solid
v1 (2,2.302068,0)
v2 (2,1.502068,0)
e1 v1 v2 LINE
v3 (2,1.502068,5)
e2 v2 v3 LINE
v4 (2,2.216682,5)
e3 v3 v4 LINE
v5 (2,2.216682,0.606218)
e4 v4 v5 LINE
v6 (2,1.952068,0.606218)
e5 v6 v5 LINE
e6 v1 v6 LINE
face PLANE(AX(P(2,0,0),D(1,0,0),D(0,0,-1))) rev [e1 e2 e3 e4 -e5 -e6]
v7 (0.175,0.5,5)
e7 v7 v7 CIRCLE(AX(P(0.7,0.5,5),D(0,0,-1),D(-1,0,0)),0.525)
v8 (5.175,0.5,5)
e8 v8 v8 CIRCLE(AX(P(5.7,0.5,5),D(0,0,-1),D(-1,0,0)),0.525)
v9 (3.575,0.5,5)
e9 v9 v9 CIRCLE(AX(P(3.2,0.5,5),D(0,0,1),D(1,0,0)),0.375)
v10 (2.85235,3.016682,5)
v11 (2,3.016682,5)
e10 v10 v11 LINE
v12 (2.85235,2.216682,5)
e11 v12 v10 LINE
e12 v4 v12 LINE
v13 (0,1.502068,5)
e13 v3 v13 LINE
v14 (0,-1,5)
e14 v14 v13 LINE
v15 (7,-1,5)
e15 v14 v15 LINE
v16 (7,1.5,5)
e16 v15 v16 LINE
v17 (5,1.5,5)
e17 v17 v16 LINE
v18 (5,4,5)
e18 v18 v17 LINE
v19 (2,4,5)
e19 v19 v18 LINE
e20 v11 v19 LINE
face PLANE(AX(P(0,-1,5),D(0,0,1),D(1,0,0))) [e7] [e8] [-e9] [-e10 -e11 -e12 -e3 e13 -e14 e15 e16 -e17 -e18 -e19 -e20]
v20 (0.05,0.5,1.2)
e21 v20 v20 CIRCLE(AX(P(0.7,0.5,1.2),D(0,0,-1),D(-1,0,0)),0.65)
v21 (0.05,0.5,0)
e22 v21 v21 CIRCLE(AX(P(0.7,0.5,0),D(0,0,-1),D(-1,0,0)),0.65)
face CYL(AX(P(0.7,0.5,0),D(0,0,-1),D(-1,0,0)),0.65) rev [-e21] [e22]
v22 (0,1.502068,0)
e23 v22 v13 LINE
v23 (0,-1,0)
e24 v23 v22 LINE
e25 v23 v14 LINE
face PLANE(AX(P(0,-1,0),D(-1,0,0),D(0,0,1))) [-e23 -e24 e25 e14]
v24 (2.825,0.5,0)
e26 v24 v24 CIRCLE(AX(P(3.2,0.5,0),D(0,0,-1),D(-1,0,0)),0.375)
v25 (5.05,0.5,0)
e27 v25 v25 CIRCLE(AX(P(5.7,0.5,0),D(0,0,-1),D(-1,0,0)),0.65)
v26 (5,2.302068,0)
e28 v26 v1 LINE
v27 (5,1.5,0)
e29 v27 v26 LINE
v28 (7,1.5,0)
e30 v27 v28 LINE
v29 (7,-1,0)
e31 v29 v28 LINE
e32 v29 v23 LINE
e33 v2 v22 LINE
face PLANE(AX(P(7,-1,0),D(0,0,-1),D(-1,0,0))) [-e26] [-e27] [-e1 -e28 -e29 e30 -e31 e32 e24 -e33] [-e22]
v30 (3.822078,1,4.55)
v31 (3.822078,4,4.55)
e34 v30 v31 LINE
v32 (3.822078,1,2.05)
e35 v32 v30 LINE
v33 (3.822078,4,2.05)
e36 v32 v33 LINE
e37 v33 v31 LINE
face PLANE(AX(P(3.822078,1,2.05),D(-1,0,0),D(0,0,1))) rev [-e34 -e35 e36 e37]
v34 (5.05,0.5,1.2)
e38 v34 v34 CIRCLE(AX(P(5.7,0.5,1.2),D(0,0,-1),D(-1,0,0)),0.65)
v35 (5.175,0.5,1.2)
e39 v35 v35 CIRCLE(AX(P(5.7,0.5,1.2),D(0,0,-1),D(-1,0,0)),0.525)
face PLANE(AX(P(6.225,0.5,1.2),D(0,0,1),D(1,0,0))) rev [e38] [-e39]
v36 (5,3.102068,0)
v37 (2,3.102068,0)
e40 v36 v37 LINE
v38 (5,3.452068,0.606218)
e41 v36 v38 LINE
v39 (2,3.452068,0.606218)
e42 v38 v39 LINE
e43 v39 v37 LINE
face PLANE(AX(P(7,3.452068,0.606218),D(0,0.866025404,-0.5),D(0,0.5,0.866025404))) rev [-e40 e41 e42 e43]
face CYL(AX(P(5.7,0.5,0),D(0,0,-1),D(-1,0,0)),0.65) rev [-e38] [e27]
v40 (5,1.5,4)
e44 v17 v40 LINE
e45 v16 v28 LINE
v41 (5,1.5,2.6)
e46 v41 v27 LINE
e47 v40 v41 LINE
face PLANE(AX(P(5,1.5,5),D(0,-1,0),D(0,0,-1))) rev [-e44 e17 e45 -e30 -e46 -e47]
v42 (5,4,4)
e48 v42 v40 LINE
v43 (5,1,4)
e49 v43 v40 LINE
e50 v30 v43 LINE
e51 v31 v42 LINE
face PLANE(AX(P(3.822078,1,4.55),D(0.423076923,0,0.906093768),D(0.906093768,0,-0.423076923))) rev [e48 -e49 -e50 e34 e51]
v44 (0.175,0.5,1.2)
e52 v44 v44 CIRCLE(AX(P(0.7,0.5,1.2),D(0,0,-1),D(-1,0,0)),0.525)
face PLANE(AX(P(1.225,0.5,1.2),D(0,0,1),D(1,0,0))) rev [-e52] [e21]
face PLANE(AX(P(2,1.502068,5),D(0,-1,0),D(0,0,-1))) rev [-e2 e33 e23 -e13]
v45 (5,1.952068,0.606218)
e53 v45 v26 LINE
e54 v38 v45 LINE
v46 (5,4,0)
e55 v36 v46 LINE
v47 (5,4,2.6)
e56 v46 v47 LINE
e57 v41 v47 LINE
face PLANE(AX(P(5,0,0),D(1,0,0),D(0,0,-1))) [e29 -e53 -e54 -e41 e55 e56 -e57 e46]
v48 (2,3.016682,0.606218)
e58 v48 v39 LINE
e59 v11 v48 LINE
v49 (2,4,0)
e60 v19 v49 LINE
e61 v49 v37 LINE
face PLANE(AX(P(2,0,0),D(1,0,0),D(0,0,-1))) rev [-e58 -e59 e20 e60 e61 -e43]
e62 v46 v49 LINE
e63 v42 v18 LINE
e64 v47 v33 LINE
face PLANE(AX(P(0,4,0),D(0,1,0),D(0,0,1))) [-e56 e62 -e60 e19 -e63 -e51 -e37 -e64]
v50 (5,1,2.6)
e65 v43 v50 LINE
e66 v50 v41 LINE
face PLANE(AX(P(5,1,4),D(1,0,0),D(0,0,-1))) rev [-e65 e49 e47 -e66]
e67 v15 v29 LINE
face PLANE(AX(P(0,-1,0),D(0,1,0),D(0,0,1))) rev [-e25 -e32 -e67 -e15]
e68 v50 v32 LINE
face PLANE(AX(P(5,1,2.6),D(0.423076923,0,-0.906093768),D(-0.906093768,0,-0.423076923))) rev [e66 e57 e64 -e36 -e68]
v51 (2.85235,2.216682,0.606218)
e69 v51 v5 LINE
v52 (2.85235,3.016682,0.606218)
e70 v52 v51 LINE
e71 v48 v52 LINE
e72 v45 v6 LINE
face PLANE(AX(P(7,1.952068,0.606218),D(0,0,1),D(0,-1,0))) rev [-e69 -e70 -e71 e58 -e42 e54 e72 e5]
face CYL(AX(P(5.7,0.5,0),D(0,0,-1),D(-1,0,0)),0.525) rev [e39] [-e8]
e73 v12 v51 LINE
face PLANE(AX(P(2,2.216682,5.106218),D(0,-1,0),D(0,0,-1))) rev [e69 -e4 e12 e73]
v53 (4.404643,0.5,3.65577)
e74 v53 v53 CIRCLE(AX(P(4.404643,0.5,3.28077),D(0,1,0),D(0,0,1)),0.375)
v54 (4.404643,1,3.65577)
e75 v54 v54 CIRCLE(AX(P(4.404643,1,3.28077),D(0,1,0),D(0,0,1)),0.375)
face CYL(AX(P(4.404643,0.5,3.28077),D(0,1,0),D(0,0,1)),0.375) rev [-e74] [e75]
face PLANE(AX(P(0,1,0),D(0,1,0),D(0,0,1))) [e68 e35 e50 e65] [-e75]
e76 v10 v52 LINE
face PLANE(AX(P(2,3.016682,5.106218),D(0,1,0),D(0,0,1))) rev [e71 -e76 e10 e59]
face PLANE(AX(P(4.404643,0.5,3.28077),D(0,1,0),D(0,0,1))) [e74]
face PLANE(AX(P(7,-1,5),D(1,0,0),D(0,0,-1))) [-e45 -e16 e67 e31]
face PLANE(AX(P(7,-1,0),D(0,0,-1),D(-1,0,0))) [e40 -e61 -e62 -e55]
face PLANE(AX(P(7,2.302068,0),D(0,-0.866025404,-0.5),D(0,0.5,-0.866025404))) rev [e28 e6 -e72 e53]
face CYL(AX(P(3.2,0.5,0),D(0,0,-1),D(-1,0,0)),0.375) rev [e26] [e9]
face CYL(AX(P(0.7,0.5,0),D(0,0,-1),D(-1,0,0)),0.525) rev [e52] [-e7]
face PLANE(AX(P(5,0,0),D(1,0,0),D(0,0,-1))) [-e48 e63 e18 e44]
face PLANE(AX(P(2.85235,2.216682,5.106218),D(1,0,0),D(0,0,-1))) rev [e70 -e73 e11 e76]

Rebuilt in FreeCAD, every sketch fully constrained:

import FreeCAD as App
import Part
import Sketcher
from FreeCAD import Vector
Q = App.Units.Quantity

doc = App.newDocument("Part")
body = doc.addObject("PartDesign::Body", "Body")

sketch1 = doc.addObject("Sketcher::SketchObject", "Sketch")
body.addObject(sketch1)
sketch1.AttachmentSupport = (doc.XZ_Plane, [""])
sketch1.MapMode = "FlatFace"
sketch1.AttachmentOffset = App.Placement(Vector(0, 0, -4), App.Rotation())
sketch1.addGeometry(Part.LineSegment(Vector(7, 5, 0), Vector(7, 0, 0)), False)
sketch1.addGeometry(Part.LineSegment(Vector(7, 0, 0), Vector(0, 0, 0)), False)
sketch1.addGeometry(Part.LineSegment(Vector(0, 0, 0), Vector(0, 5, 0)), False)
sketch1.addGeometry(Part.LineSegment(Vector(0, 5, 0), Vector(7, 5, 0)), False)
sketch1.addConstraint(Sketcher.Constraint("Coincident", 0, 2, 1, 1))
sketch1.addConstraint(Sketcher.Constraint("Coincident", 1, 2, 2, 1))
sketch1.addConstraint(Sketcher.Constraint("Coincident", 2, 2, 3, 1))
sketch1.addConstraint(Sketcher.Constraint("Coincident", 3, 2, 0, 1))
sketch1.addConstraint(Sketcher.Constraint("Vertical", 0))
sketch1.addConstraint(Sketcher.Constraint("Horizontal", 1))
sketch1.addConstraint(Sketcher.Constraint("Vertical", 2))
sketch1.addConstraint(Sketcher.Constraint("Horizontal", 3))
sketch1.addConstraint(Sketcher.Constraint("Coincident", 1, 2, -1, 1))
sketch1.addConstraint(Sketcher.Constraint("DistanceX", 1, 2, 1, 1, Q("7 mm")))
sketch1.addConstraint(Sketcher.Constraint("DistanceY", 0, 2, 0, 1, Q("5 mm")))
pad1 = doc.addObject("PartDesign::Pad", "Pad")
body.addObject(pad1)
pad1.Profile = sketch1
pad1.Length = 5

sketch2 = doc.addObject("Sketcher::SketchObject", "Sketch001")
body.addObject(sketch2)
sketch2.AttachmentSupport = (doc.XY_Plane, [""])
sketch2.MapMode = "FlatFace"
sketch2.addGeometry(Part.Circle(Vector(5.7, 0.5, 0), Vector(0, 0, 1), 0.5), False)
sketch2.addGeometry(Part.Circle(Vector(0.7, 0.5, 0), Vector(0, 0, 1), 0.5), False)
sketch2.addConstraint(Sketcher.Constraint("Equal", 0, 1))
sketch2.addConstraint(Sketcher.Constraint("Horizontal", 0, 3, 1, 3))
sketch2.addConstraint(Sketcher.Constraint("Diameter", 0, Q("1.05 mm")))
sketch2.addConstraint(Sketcher.Constraint("DistanceX", 1, 3, 0, 3, Q("5 mm")))
sketch2.addConstraint(Sketcher.Constraint("DistanceX", -1, 1, 0, 3, Q("5.7 mm")))
sketch2.addConstraint(Sketcher.Constraint("DistanceY", -1, 1, 0, 3, Q("0.5 mm")))
doc.recompute()
hole = doc.addObject("PartDesign::Hole", "Hole")
body.addObject(hole)
hole.Profile = sketch2
hole.ThreadType = "None"
hole.Diameter = 1.05
hole.DepthType = "ThroughAll"
hole.HoleCutType = "Counterbore"
hole.HoleCutDiameter = 1.3
hole.HoleCutDepth = 1.2
hole.Reversed = True

sketch3 = doc.addObject("Sketcher::SketchObject", "Sketch002")
body.addObject(sketch3)
sketch3.AttachmentSupport = (doc.YZ_Plane, [""])
sketch3.MapMode = "FlatFace"
sketch3.AttachmentOffset = App.Placement(Vector(0, 0, 7), App.Rotation())
sketch3.addGeometry(Part.LineSegment(Vector(4, 5, 0), Vector(1.5, 5, 0)), False)
sketch3.addGeometry(Part.LineSegment(Vector(1.5, 5, 0), Vector(1.5, 0, 0)), False)
sketch3.addGeometry(Part.LineSegment(Vector(1.5, 0, 0), Vector(4, 0, 0)), False)
sketch3.addGeometry(Part.LineSegment(Vector(4, 0, 0), Vector(4, 5, 0)), False)
sketch3.addConstraint(Sketcher.Constraint("Coincident", 0, 2, 1, 1))
sketch3.addConstraint(Sketcher.Constraint("Coincident", 1, 2, 2, 1))
sketch3.addConstraint(Sketcher.Constraint("Coincident", 2, 2, 3, 1))
sketch3.addConstraint(Sketcher.Constraint("Coincident", 3, 2, 0, 1))
sketch3.addConstraint(Sketcher.Constraint("Horizontal", 0))
sketch3.addConstraint(Sketcher.Constraint("Vertical", 1))
sketch3.addConstraint(Sketcher.Constraint("Horizontal", 2))
sketch3.addConstraint(Sketcher.Constraint("Vertical", 3))
sketch3.addConstraint(Sketcher.Constraint("PointOnObject", 1, 2, -1))
sketch3.addConstraint(Sketcher.Constraint("DistanceY", 1, 2, 1, 1, Q("5 mm")))
sketch3.addConstraint(Sketcher.Constraint("DistanceX", 0, 2, 0, 1, Q("2.5 mm")))
sketch3.addConstraint(Sketcher.Constraint("DistanceX", -1, 1, 2, 2, Q("4 mm")))
pocket1 = doc.addObject("PartDesign::Pocket", "Pocket")
body.addObject(pocket1)
pocket1.Profile = sketch3
pocket1.Length = 2

sketch4 = doc.addObject("Sketcher::SketchObject", "Sketch003")
body.addObject(sketch4)
sketch4.AttachmentSupport = (doc.XY_Plane, [""])
sketch4.MapMode = "FlatFace"
sketch4.addGeometry(Part.Circle(Vector(3.2, 0.5, 0), Vector(0, 0, 1), 0.38), False)
sketch4.addConstraint(Sketcher.Constraint("Diameter", 0, Q("0.75 mm")))
sketch4.addConstraint(Sketcher.Constraint("DistanceX", -1, 1, 0, 3, Q("3.2 mm")))
sketch4.addConstraint(Sketcher.Constraint("DistanceY", -1, 1, 0, 3, Q("0.5 mm")))
doc.recompute()
hole2 = doc.addObject("PartDesign::Hole", "Hole001")
body.addObject(hole2)
hole2.Profile = sketch4
hole2.ThreadType = "None"
hole2.Diameter = 0.75
hole2.DepthType = "ThroughAll"
hole2.Reversed = True

sketch5 = doc.addObject("Sketcher::SketchObject", "Sketch004")
body.addObject(sketch5)
sketch5.AttachmentSupport = (doc.YZ_Plane, [""])
sketch5.MapMode = "FlatFace"
sketch5.addGeometry(Part.LineSegment(Vector(4, 0, 0), Vector(1.5, 0, 0)), False)
sketch5.addGeometry(Part.LineSegment(Vector(1.5, 0, 0), Vector(1.5, 5, 0)), False)
sketch5.addGeometry(Part.LineSegment(Vector(1.5, 5, 0), Vector(4, 5, 0)), False)
sketch5.addGeometry(Part.LineSegment(Vector(4, 5, 0), Vector(4, 0, 0)), False)
sketch5.addConstraint(Sketcher.Constraint("Coincident", 0, 2, 1, 1))
sketch5.addConstraint(Sketcher.Constraint("Coincident", 1, 2, 2, 1))
sketch5.addConstraint(Sketcher.Constraint("Coincident", 2, 2, 3, 1))
sketch5.addConstraint(Sketcher.Constraint("Coincident", 3, 2, 0, 1))
sketch5.addConstraint(Sketcher.Constraint("Horizontal", 0))
sketch5.addConstraint(Sketcher.Constraint("Vertical", 1))
sketch5.addConstraint(Sketcher.Constraint("Horizontal", 2))
sketch5.addConstraint(Sketcher.Constraint("Vertical", 3))
sketch5.addConstraint(Sketcher.Constraint("PointOnObject", 0, 2, -1))
sketch5.addConstraint(Sketcher.Constraint("DistanceY", 1, 1, 1, 2, Q("5 mm")))
sketch5.addConstraint(Sketcher.Constraint("DistanceX", 0, 2, 0, 1, Q("2.5 mm")))
sketch5.addConstraint(Sketcher.Constraint("DistanceX", -1, 1, 0, 2, Q("1.502068 mm")))
pocket2 = doc.addObject("PartDesign::Pocket", "Pocket001")
body.addObject(pocket2)
pocket2.Profile = sketch5
pocket2.Length = 2
pocket2.Reversed = True

sketch6 = doc.addObject("Sketcher::SketchObject", "Sketch005")
body.addObject(sketch6)
sketch6.AttachmentSupport = (doc.XZ_Plane, [""])
sketch6.MapMode = "FlatFace"
sketch6.AttachmentOffset = App.Placement(Vector(0, 0, -4), App.Rotation())
sketch6.addGeometry(Part.LineSegment(Vector(5, 2.6, 0), Vector(3.8, 2, 0)), False)
sketch6.addGeometry(Part.LineSegment(Vector(3.8, 2, 0), Vector(3.8, 4.5, 0)), False)
sketch6.addGeometry(Part.LineSegment(Vector(3.8, 4.5, 0), Vector(5, 4, 0)), False)
sketch6.addGeometry(Part.LineSegment(Vector(5, 4, 0), Vector(5, 2.6, 0)), False)
sketch6.addConstraint(Sketcher.Constraint("Coincident", 0, 2, 1, 1))
sketch6.addConstraint(Sketcher.Constraint("Coincident", 1, 2, 2, 1))
sketch6.addConstraint(Sketcher.Constraint("Coincident", 2, 2, 3, 1))
sketch6.addConstraint(Sketcher.Constraint("Coincident", 3, 2, 0, 1))
sketch6.addConstraint(Sketcher.Constraint("Vertical", 1))
sketch6.addConstraint(Sketcher.Constraint("Vertical", 3))
sketch6.addConstraint(Sketcher.Constraint("Equal", 0, 2))
sketch6.addConstraint(Sketcher.Constraint("DistanceY", 1, 1, 1, 2, Q("2.5 mm")))
sketch6.addConstraint(Sketcher.Constraint("DistanceY", 3, 2, 3, 1, Q("1.4 mm")))
sketch6.addConstraint(Sketcher.Constraint("DistanceX", -1, 1, 2, 2, Q("5 mm")))
sketch6.addConstraint(Sketcher.Constraint("DistanceY", -1, 1, 2, 2, Q("4 mm")))
sketch6.addConstraint(Sketcher.Constraint("Distance", 0, Q("1.3 mm")))
pocket3 = doc.addObject("PartDesign::Pocket", "Pocket002")
body.addObject(pocket3)
pocket3.Profile = sketch6
pocket3.Length = 3
pocket3.Reversed = True

sketch7 = doc.addObject("Sketcher::SketchObject", "Sketch006")
body.addObject(sketch7)
sketch7.AttachmentSupport = (doc.YZ_Plane, [""])
sketch7.MapMode = "FlatFace"
sketch7.AttachmentOffset = App.Placement(Vector(0, 0, 2), App.Rotation())
sketch7.addGeometry(Part.LineSegment(Vector(2.3, 0, 0), Vector(2, 0.6, 0)), False)
sketch7.addGeometry(Part.LineSegment(Vector(2, 0.6, 0), Vector(3.5, 0.6, 0)), False)
sketch7.addGeometry(Part.LineSegment(Vector(3.5, 0.6, 0), Vector(3.1, 0, 0)), False)
sketch7.addGeometry(Part.LineSegment(Vector(3.1, 0, 0), Vector(2.3, 0, 0)), False)
sketch7.addConstraint(Sketcher.Constraint("Coincident", 0, 2, 1, 1))
sketch7.addConstraint(Sketcher.Constraint("Coincident", 1, 2, 2, 1))
sketch7.addConstraint(Sketcher.Constraint("Coincident", 2, 2, 3, 1))
sketch7.addConstraint(Sketcher.Constraint("Coincident", 3, 2, 0, 1))
sketch7.addConstraint(Sketcher.Constraint("Horizontal", 1))
sketch7.addConstraint(Sketcher.Constraint("Horizontal", 3))
sketch7.addConstraint(Sketcher.Constraint("PointOnObject", 2, 2, -1))
sketch7.addConstraint(Sketcher.Constraint("Equal", 0, 2))
sketch7.addConstraint(Sketcher.Constraint("Angle", 0, Q("120 deg")))
sketch7.addConstraint(Sketcher.Constraint("DistanceX", 1, 1, 1, 2, Q("1.5 mm")))
sketch7.addConstraint(Sketcher.Constraint("DistanceX", 3, 2, 3, 1, Q("0.8 mm")))
sketch7.addConstraint(Sketcher.Constraint("DistanceX", -1, 1, 0, 2, Q("1.952068 mm")))
pocket4 = doc.addObject("PartDesign::Pocket", "Pocket003")
body.addObject(pocket4)
pocket4.Profile = sketch7
pocket4.Type = "ThroughAll"
pocket4.Reversed = True

sketch8 = doc.addObject("Sketcher::SketchObject", "Sketch007")
body.addObject(sketch8)
sketch8.AttachmentSupport = (doc.XZ_Plane, [""])
sketch8.MapMode = "FlatFace"
sketch8.AttachmentOffset = App.Placement(Vector(0, 0, -1), App.Rotation())
sketch8.addGeometry(Part.Circle(Vector(4.4, 3.28, 0), Vector(0, 0, 1), 0.38), False)
sketch8.addConstraint(Sketcher.Constraint("Diameter", 0, Q("0.75 mm")))
sketch8.addConstraint(Sketcher.Constraint("DistanceY", -1, 1, 0, 3, Q("3.28077 mm")))
sketch8.addConstraint(Sketcher.Constraint("DistanceX", -1, 1, 0, 3, Q("4.404643 mm")))
pocket5 = doc.addObject("PartDesign::Pocket", "Pocket004")
body.addObject(pocket5)
pocket5.Profile = sketch8
pocket5.Length = 0.5
pocket5.Reversed = True

sketch9 = doc.addObject("Sketcher::SketchObject", "Sketch008")
body.addObject(sketch9)
sketch9.AttachmentSupport = (doc.XY_Plane, [""])
sketch9.MapMode = "FlatFace"
sketch9.AttachmentOffset = App.Placement(Vector(0, 0, 0.606218), App.Rotation())
sketch9.addGeometry(Part.LineSegment(Vector(2.9, 3, 0), Vector(2.9, 2.2, 0)), False)
sketch9.addGeometry(Part.LineSegment(Vector(2.9, 2.2, 0), Vector(2, 2.2, 0)), False)
sketch9.addGeometry(Part.LineSegment(Vector(2, 2.2, 0), Vector(2, 3, 0)), False)
sketch9.addGeometry(Part.LineSegment(Vector(2, 3, 0), Vector(2.9, 3, 0)), False)
sketch9.addConstraint(Sketcher.Constraint("Coincident", 0, 2, 1, 1))
sketch9.addConstraint(Sketcher.Constraint("Coincident", 1, 2, 2, 1))
sketch9.addConstraint(Sketcher.Constraint("Coincident", 2, 2, 3, 1))
sketch9.addConstraint(Sketcher.Constraint("Coincident", 3, 2, 0, 1))
sketch9.addConstraint(Sketcher.Constraint("Vertical", 0))
sketch9.addConstraint(Sketcher.Constraint("Horizontal", 1))
sketch9.addConstraint(Sketcher.Constraint("Vertical", 2))
sketch9.addConstraint(Sketcher.Constraint("Horizontal", 3))
sketch9.addConstraint(Sketcher.Constraint("DistanceY", 0, 2, 0, 1, Q("0.8 mm")))
sketch9.addConstraint(Sketcher.Constraint("DistanceX", -1, 1, 1, 2, Q("2 mm")))
sketch9.addConstraint(Sketcher.Constraint("DistanceX", 1, 2, 1, 1, Q("0.85235 mm")))
sketch9.addConstraint(Sketcher.Constraint("DistanceY", -1, 1, 0, 2, Q("2.216682 mm")))
pocket6 = doc.addObject("PartDesign::Pocket", "Pocket005")
body.addObject(pocket6)
pocket6.Profile = sketch9
pocket6.Length = 4.5
pocket6.Reversed = True

doc.recompute()
